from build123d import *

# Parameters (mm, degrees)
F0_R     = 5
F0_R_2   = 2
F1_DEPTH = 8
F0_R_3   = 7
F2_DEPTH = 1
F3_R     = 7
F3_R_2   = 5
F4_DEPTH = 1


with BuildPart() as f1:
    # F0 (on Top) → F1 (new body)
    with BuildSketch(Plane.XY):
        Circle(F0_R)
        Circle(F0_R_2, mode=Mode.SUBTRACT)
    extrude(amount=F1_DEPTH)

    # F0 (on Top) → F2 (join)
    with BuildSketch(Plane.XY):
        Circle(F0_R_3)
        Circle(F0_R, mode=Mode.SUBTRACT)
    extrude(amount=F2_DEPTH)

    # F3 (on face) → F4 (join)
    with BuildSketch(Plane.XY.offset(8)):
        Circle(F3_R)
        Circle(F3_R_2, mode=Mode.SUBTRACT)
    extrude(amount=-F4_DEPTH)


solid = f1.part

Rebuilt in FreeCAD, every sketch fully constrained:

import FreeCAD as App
import Part
import Sketcher
from FreeCAD import Vector
Q = App.Units.Quantity

doc = App.newDocument("Part")
body = doc.addObject("PartDesign::Body", "Body")

# Sketch on XY plane
sketch1 = body.newObject("Sketcher::SketchObject", "Sketch")
sketch1.AttachmentSupport = (doc.getObject("XY_Plane"), [""])
sketch1.MapMode = "FlatFace"
sketch1.addGeometry([
    Part.Circle(Vector(0, 0, 0), Vector(0, 0, 1), 5),
    Part.Circle(Vector(0, 0, 0), Vector(0, 0, 1), 2),
], False)
sketch1.addConstraint([
    Sketcher.Constraint("Coincident", 0, 3, -1, 1),
    Sketcher.Constraint("Coincident", 1, 3, -1, 1),
    Sketcher.Constraint("Diameter", 0, Q("10 mm")),
    Sketcher.Constraint("Diameter", 1, Q("4 mm")),
])
pad1 = body.newObject("PartDesign::Pad", "Pad")
pad1.Profile = sketch1
pad1.Length = 8

# Sketch on XY plane
sketch2 = body.newObject("Sketcher::SketchObject", "Sketch001")
sketch2.AttachmentSupport = (doc.getObject("XY_Plane"), [""])
sketch2.MapMode = "FlatFace"
sketch2.addGeometry([
    Part.Circle(Vector(0, 0, 0), Vector(0, 0, 1), 7),
    Part.Circle(Vector(0, 0, 0), Vector(0, 0, 1), 5),
], False)
sketch2.addConstraint([
    Sketcher.Constraint("Coincident", 0, 3, -1, 1),
    Sketcher.Constraint("Coincident", 1, 3, -1, 1),
    Sketcher.Constraint("Diameter", 0, Q("14 mm")),
    Sketcher.Constraint("Diameter", 1, Q("10 mm")),
])
pad2 = body.newObject("PartDesign::Pad", "Pad001")
pad2.Profile = sketch2
pad2.Length = 1

# Sketch on XY plane
sketch3 = body.newObject("Sketcher::SketchObject", "Sketch002")
sketch3.AttachmentSupport = (doc.getObject("XY_Plane"), [""])
sketch3.MapMode = "FlatFace"
sketch3.AttachmentOffset = App.Placement(Vector(0, 0, 8), App.Rotation())
sketch3.addGeometry([
    Part.Circle(Vector(0, 0, 0), Vector(0, 0, 1), 7),
    Part.Circle(Vector(0, 0, 0), Vector(0, 0, 1), 5),
], False)
sketch3.addConstraint([
    Sketcher.Constraint("Coincident", 0, 3, -1, 1),
    Sketcher.Constraint("Coincident", 1, 3, -1, 1),
    Sketcher.Constraint("Diameter", 0, Q("14 mm")),
    Sketcher.Constraint("Diameter", 1, Q("10 mm")),
])
pad3 = body.newObject("PartDesign::Pad", "Pad002")
pad3.Profile = sketch3
pad3.Length = 1
pad3.Reversed = True

doc.recompute()
